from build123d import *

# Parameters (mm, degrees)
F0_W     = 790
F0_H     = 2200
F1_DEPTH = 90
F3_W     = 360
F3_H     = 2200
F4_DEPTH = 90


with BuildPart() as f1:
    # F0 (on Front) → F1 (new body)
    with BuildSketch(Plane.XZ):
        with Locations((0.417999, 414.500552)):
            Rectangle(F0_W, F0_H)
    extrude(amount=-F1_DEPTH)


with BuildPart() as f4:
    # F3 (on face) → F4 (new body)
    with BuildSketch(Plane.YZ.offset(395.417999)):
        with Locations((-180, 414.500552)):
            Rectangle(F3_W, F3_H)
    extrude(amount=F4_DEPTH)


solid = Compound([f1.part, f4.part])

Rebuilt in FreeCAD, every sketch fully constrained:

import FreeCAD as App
import Part
import Sketcher

V = App.Vector
Q = App.Units.Quantity

doc = App.newDocument("Part")
body = doc.addObject("PartDesign::Body", "Body")

# Sketch on XZ plane
sketch1 = body.newObject("Sketcher::SketchObject", "Sketch")
sketch1.AttachmentSupport = (doc.getObject("XZ_Plane"), [""])
sketch1.MapMode = "FlatFace"
sketch1.addGeometry(Part.LineSegment(V(-395, 1515, 0), V(-395, -685, 0)), False)
sketch1.addGeometry(Part.LineSegment(V(-395, -685, 0), V(395, -685, 0)), False)
sketch1.addGeometry(Part.LineSegment(V(395, -685, 0), V(395, 1515, 0)), False)
sketch1.addGeometry(Part.LineSegment(V(395, 1515, 0), V(-395, 1515, 0)), False)
sketch1.addConstraint(Sketcher.Constraint("Coincident", 0, 2, 1, 1))
sketch1.addConstraint(Sketcher.Constraint("Coincident", 1, 2, 2, 1))
sketch1.addConstraint(Sketcher.Constraint("Coincident", 2, 2, 3, 1))
sketch1.addConstraint(Sketcher.Constraint("Coincident", 3, 2, 0, 1))
sketch1.addConstraint(Sketcher.Constraint("Vertical", 0))
sketch1.addConstraint(Sketcher.Constraint("Horizontal", 1))
sketch1.addConstraint(Sketcher.Constraint("Vertical", 2))
sketch1.addConstraint(Sketcher.Constraint("Horizontal", 3))
sketch1.addConstraint(Sketcher.Constraint("DistanceX", 1, 1, 1, 2, Q("790 mm")))
sketch1.addConstraint(Sketcher.Constraint("DistanceY", 0, 2, 0, 1, Q("2200 mm")))
sketch1.addConstraint(Sketcher.Constraint("DistanceX", 0, 2, -1, 1, Q("394.582001 mm")))
sketch1.addConstraint(Sketcher.Constraint("DistanceY", 0, 2, -1, 1, Q("685.499448 mm")))
pad1 = body.newObject("PartDesign::Pad", "Pad")
pad1.Profile = sketch1
pad1.Length = 90
pad1.Reversed = True
body2 = doc.addObject("PartDesign::Body", "Body001")

# Sketch on YZ plane
sketch2 = body2.newObject("Sketcher::SketchObject", "Sketch001")
sketch2.AttachmentSupport = (doc.getObject("YZ_Plane001"), [""])
sketch2.MapMode = "FlatFace"
sketch2.AttachmentOffset = App.Placement(V(0, 0, 395.417999), App.Rotation())
sketch2.addGeometry(Part.LineSegment(V(-360, 1515, 0), V(-360, -685, 0)), False)
sketch2.addGeometry(Part.LineSegment(V(-360, -685, 0), V(0, -685, 0)), False)
sketch2.addGeometry(Part.LineSegment(V(0, -685, 0), V(0, 1515, 0)), False)
sketch2.addGeometry(Part.LineSegment(V(0, 1515, 0), V(-360, 1515, 0)), False)
sketch2.addConstraint(Sketcher.Constraint("Coincident", 0, 2, 1, 1))
sketch2.addConstraint(Sketcher.Constraint("Coincident", 1, 2, 2, 1))
sketch2.addConstraint(Sketcher.Constraint("Coincident", 2, 2, 3, 1))
sketch2.addConstraint(Sketcher.Constraint("Coincident", 3, 2, 0, 1))
sketch2.addConstraint(Sketcher.Constraint("Vertical", 0))
sketch2.addConstraint(Sketcher.Constraint("Horizontal", 1))
sketch2.addConstraint(Sketcher.Constraint("Vertical", 2))
sketch2.addConstraint(Sketcher.Constraint("Horizontal", 3))
sketch2.addConstraint(Sketcher.Constraint("PointOnObject", 1, 2, -2))
sketch2.addConstraint(Sketcher.Constraint("DistanceX", 1, 1, 1, 2, Q("360 mm")))
sketch2.addConstraint(Sketcher.Constraint("DistanceY", 0, 2, 0, 1, Q("2200 mm")))
sketch2.addConstraint(Sketcher.Constraint("DistanceY", 0, 2, -1, 1, Q("685.499448 mm")))
pad2 = body2.newObject("PartDesign::Pad", "Pad001")
pad2.Profile = sketch2
pad2.Length = 90

doc.recompute()
